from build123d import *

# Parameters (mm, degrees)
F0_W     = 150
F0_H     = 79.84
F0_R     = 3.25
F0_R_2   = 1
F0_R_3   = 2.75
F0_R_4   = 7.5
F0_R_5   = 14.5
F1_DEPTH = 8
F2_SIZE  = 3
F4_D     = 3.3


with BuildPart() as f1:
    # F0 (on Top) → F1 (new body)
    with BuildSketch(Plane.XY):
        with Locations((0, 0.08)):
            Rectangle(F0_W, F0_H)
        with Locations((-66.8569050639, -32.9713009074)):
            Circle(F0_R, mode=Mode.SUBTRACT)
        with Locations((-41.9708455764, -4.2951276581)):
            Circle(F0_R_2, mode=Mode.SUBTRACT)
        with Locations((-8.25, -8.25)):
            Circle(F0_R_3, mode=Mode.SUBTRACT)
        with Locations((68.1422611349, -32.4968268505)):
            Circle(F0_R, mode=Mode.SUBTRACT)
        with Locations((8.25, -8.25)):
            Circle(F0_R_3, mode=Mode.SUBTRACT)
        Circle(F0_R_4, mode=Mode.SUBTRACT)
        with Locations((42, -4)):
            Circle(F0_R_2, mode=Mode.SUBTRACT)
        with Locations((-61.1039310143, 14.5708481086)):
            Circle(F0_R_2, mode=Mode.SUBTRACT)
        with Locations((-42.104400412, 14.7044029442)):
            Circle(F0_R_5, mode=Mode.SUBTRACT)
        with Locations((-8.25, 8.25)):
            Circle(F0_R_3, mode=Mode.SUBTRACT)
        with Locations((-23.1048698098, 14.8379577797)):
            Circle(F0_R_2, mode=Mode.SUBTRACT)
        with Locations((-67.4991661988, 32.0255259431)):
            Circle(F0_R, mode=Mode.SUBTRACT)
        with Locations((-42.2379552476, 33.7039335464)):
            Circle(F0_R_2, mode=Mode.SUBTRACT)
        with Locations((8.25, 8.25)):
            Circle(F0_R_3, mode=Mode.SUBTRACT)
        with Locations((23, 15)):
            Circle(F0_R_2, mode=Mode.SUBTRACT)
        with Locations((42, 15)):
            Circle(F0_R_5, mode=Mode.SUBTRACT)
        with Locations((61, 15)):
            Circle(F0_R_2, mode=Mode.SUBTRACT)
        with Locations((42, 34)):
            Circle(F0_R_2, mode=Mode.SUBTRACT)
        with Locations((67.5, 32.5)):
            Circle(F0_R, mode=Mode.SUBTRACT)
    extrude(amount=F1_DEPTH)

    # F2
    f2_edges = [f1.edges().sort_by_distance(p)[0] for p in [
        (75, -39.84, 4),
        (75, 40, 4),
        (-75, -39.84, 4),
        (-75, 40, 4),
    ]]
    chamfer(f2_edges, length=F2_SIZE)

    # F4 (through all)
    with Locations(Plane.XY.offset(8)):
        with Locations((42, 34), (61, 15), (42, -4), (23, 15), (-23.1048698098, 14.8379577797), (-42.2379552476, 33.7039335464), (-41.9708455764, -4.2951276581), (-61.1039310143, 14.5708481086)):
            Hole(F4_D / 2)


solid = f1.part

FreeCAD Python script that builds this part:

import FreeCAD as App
import Part
import Sketcher

V = App.Vector
Q = App.Units.Quantity


def edges_at(feature, points):
    """Names of the edges that pass closest to the given points."""
    edges = feature.Shape.Edges
    near = lambda p: min(range(len(edges)), key=lambda i: edges[i].distToShape(Part.Vertex(*p))[0])
    return sorted({f"Edge{near(p) + 1}" for p in points})


def add_polygon(sketch, points):
    """Adds a closed chain of lines whose ends are joined by coincident constraints."""
    first, n = sketch.GeometryCount, len(points)
    for a, b in zip(points, points[1:] + points[:1]):
        sketch.addGeometry(Part.LineSegment(App.Vector(*a, 0), App.Vector(*b, 0)), False)
    for i in range(n):
        sketch.addConstraint(Sketcher.Constraint("Coincident", first + i, 2, first + (i + 1) % n, 1))

doc = App.newDocument("Part")
body = doc.addObject("PartDesign::Body", "Body")

# Sketch on XY plane
sketch1 = body.newObject("Sketcher::SketchObject", "Sketch")
sketch1.AttachmentSupport = (doc.getObject("XY_Plane"), [""])
sketch1.MapMode = "FlatFace"
add_polygon(sketch1, [(-75, 40), (-75, -39.8), (75, -39.8), (75, 40)])  # lines 0-3
sketch1.addGeometry(Part.Circle(V(-66.9, -33, 0), V(0, 0, 1), 3.2), False)  # 4
sketch1.addGeometry(Part.Circle(V(-42, -4.3, 0), V(0, 0, 1), 1), False)  # 5
sketch1.addGeometry(Part.Circle(V(-8.2, -8.2, 0), V(0, 0, 1), 2.8), False)  # 6
sketch1.addGeometry(Part.Circle(V(68.1, -32.5, 0), V(0, 0, 1), 3.2), False)  # 7
sketch1.addGeometry(Part.Circle(V(8.2, -8.2, 0), V(0, 0, 1), 2.8), False)  # 8
sketch1.addGeometry(Part.Circle(V(42, -4, 0), V(0, 0, 1), 1), False)  # 9
sketch1.addGeometry(Part.Circle(V(-61.1, 14.6, 0), V(0, 0, 1), 1), False)  # 10
sketch1.addGeometry(Part.Circle(V(-42.1, 14.7, 0), V(0, 0, 1), 14.5), False)  # 11
sketch1.addGeometry(Part.Circle(V(0, 0, 0), V(0, 0, 1), 7.5), False)  # 12
sketch1.addGeometry(Part.Circle(V(-8.2, 8.2, 0), V(0, 0, 1), 2.8), False)  # 13
sketch1.addGeometry(Part.Circle(V(-23.1, 14.8, 0), V(0, 0, 1), 1), False)  # 14
sketch1.addGeometry(Part.Circle(V(-67.5, 32, 0), V(0, 0, 1), 3.2), False)  # 15
sketch1.addGeometry(Part.Circle(V(-42.2, 33.7, 0), V(0, 0, 1), 1), False)  # 16
sketch1.addGeometry(Part.Circle(V(8.2, 8.2, 0), V(0, 0, 1), 2.8), False)  # 17
sketch1.addGeometry(Part.Circle(V(23, 15, 0), V(0, 0, 1), 1), False)  # 18
sketch1.addGeometry(Part.Circle(V(42, 15, 0), V(0, 0, 1), 14.5), False)  # 19
sketch1.addGeometry(Part.Circle(V(61, 15, 0), V(0, 0, 1), 1), False)  # 20
sketch1.addGeometry(Part.Circle(V(42, 34, 0), V(0, 0, 1), 1), False)  # 21
sketch1.addGeometry(Part.Circle(V(67.5, 32.5, 0), V(0, 0, 1), 3.2), False)  # 22
sketch1.addConstraint(Sketcher.Constraint("Vertical", 0))
sketch1.addConstraint(Sketcher.Constraint("Horizontal", 1))
sketch1.addConstraint(Sketcher.Constraint("Vertical", 2))
sketch1.addConstraint(Sketcher.Constraint("Horizontal", 3))
sketch1.addConstraint(Sketcher.Constraint("Coincident", 12, 3, -1, 1))
sketch1.addConstraint(Sketcher.Constraint("Equal", 4, 7))
sketch1.addConstraint(Sketcher.Constraint("Equal", 6, 8))
sketch1.addConstraint(Sketcher.Constraint("Equal", 5, 9))
sketch1.addConstraint(Sketcher.Constraint("Equal", 9, 10))
sketch1.addConstraint(Sketcher.Constraint("Equal", 8, 13))
sketch1.addConstraint(Sketcher.Constraint("Equal", 10, 14))
sketch1.addConstraint(Sketcher.Constraint("Equal", 7, 15))
sketch1.addConstraint(Sketcher.Constraint("Equal", 14, 16))
sketch1.addConstraint(Sketcher.Constraint("Equal", 13, 17))
sketch1.addConstraint(Sketcher.Constraint("Equal", 16, 18))
sketch1.addConstraint(Sketcher.Constraint("Equal", 11, 19))
sketch1.addConstraint(Sketcher.Constraint("Equal", 18, 20))
sketch1.addConstraint(Sketcher.Constraint("Equal", 20, 21))
sketch1.addConstraint(Sketcher.Constraint("Equal", 15, 22))
sketch1.addConstraint(Sketcher.Constraint("Symmetric", 8, 3, 13, 3, -1, 1))
sketch1.addConstraint(Sketcher.Constraint("Symmetric", 6, 3, 17, 3, -1, 1))
sketch1.addConstraint(Sketcher.Constraint("Symmetric", 6, 3, 8, 3, -2))
sketch1.addConstraint(Sketcher.Constraint("Horizontal", 18, 3, 19, 3))
sketch1.addConstraint(Sketcher.Constraint("Horizontal", 19, 3, 20, 3))
sketch1.addConstraint(Sketcher.Constraint("Vertical", 9, 3, 19, 3))
sketch1.addConstraint(Sketcher.Constraint("Vertical", 19, 3, 21, 3))
sketch1.addConstraint(Sketcher.Constraint("Diameter", 5, Q("2 mm")))
sketch1.addConstraint(Sketcher.Constraint("Diameter", 11, Q("29 mm")))
sketch1.addConstraint(Sketcher.Constraint("Diameter", 12, Q("15 mm")))
sketch1.addConstraint(Sketcher.Constraint("Diameter", 4, Q("6.5 mm")))
sketch1.addConstraint(Sketcher.Constraint("Diameter", 6, Q("5.5 mm")))
sketch1.addConstraint(Sketcher.Constraint("DistanceX", 1, 1, 1, 2, Q("150 mm")))
sketch1.addConstraint(Sketcher.Constraint("DistanceX", -1, 1, 9, 3, Q("42 mm")))
sketch1.addConstraint(Sketcher.Constraint("DistanceY", 9, 3, -1, 1, Q("4 mm")))
sketch1.addConstraint(Sketcher.Constraint("DistanceX", -1, 1, 18, 3, Q("23 mm")))
sketch1.addConstraint(Sketcher.Constraint("DistanceY", -1, 1, 18, 3, Q("15 mm")))
sketch1.addConstraint(Sketcher.Constraint("DistanceX", -1, 1, 20, 3, Q("61 mm")))
sketch1.addConstraint(Sketcher.Constraint("DistanceY", -1, 1, 21, 3, Q("34 mm")))
sketch1.addConstraint(Sketcher.Constraint("DistanceX", 0, 2, -1, 1, Q("75 mm")))
sketch1.addConstraint(Sketcher.Constraint("DistanceY", -1, 1, 2, 2, Q("40 mm")))
sketch1.addConstraint(Sketcher.Constraint("DistanceY", 0, 2, 0, 1, Q("79.84 mm")))
sketch1.addConstraint(Sketcher.Constraint("DistanceX", -1, 1, 22, 3, Q("67.5 mm")))
sketch1.addConstraint(Sketcher.Constraint("DistanceY", -1, 1, 22, 3, Q("32.5 mm")))
sketch1.addConstraint(Sketcher.Constraint("DistanceX", 6, 3, 8, 3, Q("16.5 mm")))
sketch1.addConstraint(Sketcher.Constraint("DistanceY", 6, 3, 13, 3, Q("16.5 mm")))
sketch1.addConstraint(Sketcher.Constraint("DistanceY", 4, 3, -1, 1, Q("32.971301 mm")))
sketch1.addConstraint(Sketcher.Constraint("DistanceX", 11, 3, -1, 1, Q("42.1044 mm")))
sketch1.addConstraint(Sketcher.Constraint("DistanceY", 7, 3, 5, 3, Q("28.201699 mm")))
sketch1.addConstraint(Sketcher.Constraint("DistanceX", -1, 1, 7, 3, Q("68.142261 mm")))
sketch1.addConstraint(Sketcher.Constraint("DistanceX", 10, 3, -1, 1, Q("61.103931 mm")))
sketch1.addConstraint(Sketcher.Constraint("DistanceY", -1, 1, 10, 3, Q("14.570848 mm")))
sketch1.addConstraint(Sketcher.Constraint("DistanceX", 14, 3, -1, 1, Q("23.10487 mm")))
sketch1.addConstraint(Sketcher.Constraint("DistanceX", 4, 3, 5, 3, Q("24.886059 mm")))
sketch1.addConstraint(Sketcher.Constraint("DistanceY", 5, 3, 11, 3, Q("18.999531 mm")))
sketch1.addConstraint(Sketcher.Constraint("DistanceX", 15, 3, 5, 3, Q("25.528321 mm")))
sketch1.addConstraint(Sketcher.Constraint("DistanceY", 14, 3, 15, 3, Q("17.187568 mm")))
sketch1.addConstraint(Sketcher.Constraint("DistanceY", 11, 3, 16, 3, Q("18.999531 mm")))
sketch1.addConstraint(Sketcher.Constraint("DistanceX", 15, 3, 16, 3, Q("25.261211 mm")))
sketch1.addConstraint(Sketcher.Constraint("DistanceX", 4, 3, -1, 1, Q("66.856905 mm")))
sketch1.addConstraint(Sketcher.Constraint("DistanceY", 5, 3, -1, 1, Q("4.295128 mm")))
sketch1.addConstraint(Sketcher.Constraint("DistanceY", -1, 1, 14, 3, Q("14.837958 mm")))
pad1 = body.newObject("PartDesign::Pad", "Pad")
pad1.Profile = sketch1
pad1.Length = 8
doc.recompute()

chamfer = body.newObject("PartDesign::Chamfer", "Chamfer")
chamfer.Base = (pad1, edges_at(pad1, [
    (75, -39.84, 4),
    (75, 40, 4),
    (-75, -39.84, 4),
    (-75, 40, 4),
]))
chamfer.Size = 3

# Sketch on XY plane
sketch2 = body.newObject("Sketcher::SketchObject", "Sketch001")
sketch2.AttachmentSupport = (doc.getObject("XY_Plane"), [""])
sketch2.MapMode = "FlatFace"
sketch2.AttachmentOffset = App.Placement(V(0, 0, 8), App.Rotation())
sketch2.addGeometry(Part.Circle(V(42, 34, 0), V(0, 0, 1), 1.6), False)
sketch2.addGeometry(Part.Circle(V(61, 15, 0), V(0, 0, 1), 1.6), False)
sketch2.addGeometry(Part.Circle(V(42, -4, 0), V(0, 0, 1), 1.6), False)
sketch2.addGeometry(Part.Circle(V(23, 15, 0), V(0, 0, 1), 1.6), False)
sketch2.addGeometry(Part.Circle(V(-23.1, 14.8, 0), V(0, 0, 1), 1.6), False)
sketch2.addGeometry(Part.Circle(V(-42.2, 33.7, 0), V(0, 0, 1), 1.6), False)
sketch2.addGeometry(Part.Circle(V(-42, -4.3, 0), V(0, 0, 1), 1.6), False)
sketch2.addGeometry(Part.Circle(V(-61.1, 14.6, 0), V(0, 0, 1), 1.6), False)
sketch2.addConstraint(Sketcher.Constraint("Equal", 0, 1))
sketch2.addConstraint(Sketcher.Constraint("Equal", 1, 2))
sketch2.addConstraint(Sketcher.Constraint("Equal", 2, 3))
sketch2.addConstraint(Sketcher.Constraint("Equal", 3, 4))
sketch2.addConstraint(Sketcher.Constraint("Equal", 4, 5))
sketch2.addConstraint(Sketcher.Constraint("Equal", 5, 6))
sketch2.addConstraint(Sketcher.Constraint("Equal", 6, 7))
sketch2.addConstraint(Sketcher.Constraint("Horizontal", 1, 3, 3, 3))
sketch2.addConstraint(Sketcher.Constraint("Vertical", 0, 3, 2, 3))
sketch2.addConstraint(Sketcher.Constraint("Diameter", 0, Q("3.3 mm")))
sketch2.addConstraint(Sketcher.Constraint("DistanceX", -1, 1, 0, 3, Q("42 mm")))
sketch2.addConstraint(Sketcher.Constraint("DistanceY", -1, 1, 0, 3, Q("34 mm")))
sketch2.addConstraint(Sketcher.Constraint("DistanceX", -1, 1, 1, 3, Q("61 mm")))
sketch2.addConstraint(Sketcher.Constraint("DistanceY", -1, 1, 1, 3, Q("15 mm")))
sketch2.addConstraint(Sketcher.Constraint("DistanceY", 2, 3, -1, 1, Q("4 mm")))
sketch2.addConstraint(Sketcher.Constraint("DistanceX", -1, 1, 3, 3, Q("23 mm")))
sketch2.addConstraint(Sketcher.Constraint("DistanceX", 4, 3, -1, 1, Q("23.10487 mm")))
sketch2.addConstraint(Sketcher.Constraint("DistanceX", 7, 3, -1, 1, Q("61.103931 mm")))
sketch2.addConstraint(Sketcher.Constraint("DistanceY", -1, 1, 7, 3, Q("14.570848 mm")))
sketch2.addConstraint(Sketcher.Constraint("DistanceX", 5, 3, 6, 3, Q("0.26711 mm")))
sketch2.addConstraint(Sketcher.Constraint("DistanceY", 6, 3, 5, 3, Q("37.999061 mm")))
sketch2.addConstraint(Sketcher.Constraint("DistanceY", 7, 3, 4, 3, Q("0.26711 mm")))
sketch2.addConstraint(Sketcher.Constraint("DistanceX", 5, 3, -1, 1, Q("42.237955 mm")))
sketch2.addConstraint(Sketcher.Constraint("DistanceY", -1, 1, 5, 3, Q("33.703934 mm")))
doc.recompute()
hole = body.newObject("PartDesign::Hole", "Hole")
hole.Profile = sketch2
hole.ThreadType = "None"
hole.Diameter = 3.3
hole.DepthType = "ThroughAll"

doc.recompute()
